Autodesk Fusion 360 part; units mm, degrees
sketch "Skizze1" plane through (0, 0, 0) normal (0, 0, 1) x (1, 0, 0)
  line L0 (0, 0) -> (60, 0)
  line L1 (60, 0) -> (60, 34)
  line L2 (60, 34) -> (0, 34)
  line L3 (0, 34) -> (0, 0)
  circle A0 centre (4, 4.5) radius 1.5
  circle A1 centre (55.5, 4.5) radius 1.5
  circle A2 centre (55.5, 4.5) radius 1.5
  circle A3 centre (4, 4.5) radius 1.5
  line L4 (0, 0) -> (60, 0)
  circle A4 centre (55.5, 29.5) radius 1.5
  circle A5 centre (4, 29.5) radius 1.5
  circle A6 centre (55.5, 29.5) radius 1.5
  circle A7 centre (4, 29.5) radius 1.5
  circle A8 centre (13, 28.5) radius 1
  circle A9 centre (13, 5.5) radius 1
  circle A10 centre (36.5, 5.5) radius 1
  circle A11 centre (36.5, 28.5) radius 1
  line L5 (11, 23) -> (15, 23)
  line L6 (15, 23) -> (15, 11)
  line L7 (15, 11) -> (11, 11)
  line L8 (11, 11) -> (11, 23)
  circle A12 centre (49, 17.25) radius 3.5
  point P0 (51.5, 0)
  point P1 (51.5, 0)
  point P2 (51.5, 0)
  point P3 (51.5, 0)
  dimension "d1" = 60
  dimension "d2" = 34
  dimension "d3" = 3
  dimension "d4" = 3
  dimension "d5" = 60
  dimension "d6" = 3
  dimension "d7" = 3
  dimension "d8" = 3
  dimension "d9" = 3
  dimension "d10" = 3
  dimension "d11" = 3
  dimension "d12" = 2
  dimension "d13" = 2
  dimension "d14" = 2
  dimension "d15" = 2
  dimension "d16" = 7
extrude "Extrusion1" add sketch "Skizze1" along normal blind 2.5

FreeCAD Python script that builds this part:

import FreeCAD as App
import Part
import Sketcher
from FreeCAD import Vector
Q = App.Units.Quantity


def add_polygon(sketch, points):
    """Adds a closed chain of lines whose ends are joined by coincident constraints."""
    first, n = sketch.GeometryCount, len(points)
    for a, b in zip(points, points[1:] + points[:1]):
        sketch.addGeometry(Part.LineSegment(App.Vector(*a, 0), App.Vector(*b, 0)), False)
    for i in range(n):
        sketch.addConstraint(Sketcher.Constraint("Coincident", first + i, 2, first + (i + 1) % n, 1))

doc = App.newDocument("Part")
body = doc.addObject("PartDesign::Body", "Body")

sketch1 = body.newObject("Sketcher::SketchObject", "Sketch")
sketch1.AttachmentSupport = (doc.getObject("XY_Plane"), [""])
sketch1.MapMode = "FlatFace"
add_polygon(sketch1, [(0, 34), (0, 0), (60, 0), (60, 34)])
sketch1.addGeometry(Part.Circle(Vector(4, 4.5, 0), Vector(0, 0, 1), 1.5), False)
sketch1.addGeometry(Part.Circle(Vector(13, 5.5, 0), Vector(0, 0, 1), 1), False)
sketch1.addGeometry(Part.Circle(Vector(36.5, 5.5, 0), Vector(0, 0, 1), 1), False)
sketch1.addGeometry(Part.Circle(Vector(55.5, 4.5, 0), Vector(0, 0, 1), 1.5), False)
add_polygon(sketch1, [(11, 11), (11, 23), (15, 23), (15, 11)])
sketch1.addGeometry(Part.Circle(Vector(4, 29.5, 0), Vector(0, 0, 1), 1.5), False)
sketch1.addGeometry(Part.Circle(Vector(13, 28.5, 0), Vector(0, 0, 1), 1), False)
sketch1.addGeometry(Part.Circle(Vector(49, 17.2, 0), Vector(0, 0, 1), 3.5), False)
sketch1.addGeometry(Part.Circle(Vector(36.5, 28.5, 0), Vector(0, 0, 1), 1), False)
sketch1.addGeometry(Part.Circle(Vector(55.5, 29.5, 0), Vector(0, 0, 1), 1.5), False)
sketch1.addConstraint([
    Sketcher.Constraint("Vertical", 0),
    Sketcher.Constraint("Horizontal", 1),
    Sketcher.Constraint("Vertical", 2),
    Sketcher.Constraint("Horizontal", 3),
    Sketcher.Constraint("Vertical", 8),
    Sketcher.Constraint("Horizontal", 9),
    Sketcher.Constraint("Vertical", 10),
    Sketcher.Constraint("Horizontal", 11),
    Sketcher.Constraint("Coincident", 0, 2, -1, 1),
    Sketcher.Constraint("Equal", 5, 6),
    Sketcher.Constraint("Equal", 4, 7),
    Sketcher.Constraint("Equal", 7, 12),
    Sketcher.Constraint("Equal", 6, 13),
    Sketcher.Constraint("Equal", 13, 15),
    Sketcher.Constraint("Equal", 12, 16),
    Sketcher.Constraint("Horizontal", 5, 3, 6, 3),
    Sketcher.Constraint("Horizontal", 4, 3, 7, 3),
    Sketcher.Constraint("Horizontal", 13, 3, 15, 3),
    Sketcher.Constraint("Horizontal", 12, 3, 16, 3),
    Sketcher.Constraint("Vertical", 4, 3, 12, 3),
    Sketcher.Constraint("Vertical", 5, 3, 13, 3),
    Sketcher.Constraint("Vertical", 6, 3, 15, 3),
    Sketcher.Constraint("Vertical", 7, 3, 16, 3),
    Sketcher.Constraint("Diameter", 4, Q("3 mm")),
    Sketcher.Constraint("Diameter", 5, Q("2 mm")),
    Sketcher.Constraint("Diameter", 14, Q("7 mm")),
    Sketcher.Constraint("DistanceX", 1, 1, 1, 2, Q("60 mm")),
    Sketcher.Constraint("DistanceY", 0, 2, 0, 1, Q("34 mm")),
    Sketcher.Constraint("DistanceX", 8, 2, 13, 3, Q("2 mm")),
    Sketcher.Constraint("DistanceX", 12, 3, 8, 2, Q("7 mm")),
    Sketcher.Constraint("DistanceX", 13, 3, 9, 2, Q("2 mm")),
    Sketcher.Constraint("DistanceY", 8, 1, 8, 2, Q("12 mm")),
    Sketcher.Constraint("DistanceX", -1, 1, 4, 3, Q("4 mm")),
    Sketcher.Constraint("DistanceX", -1, 1, 14, 3, Q("49 mm")),
    Sketcher.Constraint("DistanceY", -1, 1, 8, 2, Q("23 mm")),
    Sketcher.Constraint("DistanceY", 4, 3, 5, 3, Q("1 mm")),
    Sketcher.Constraint("DistanceX", 6, 3, 7, 3, Q("19 mm")),
    Sketcher.Constraint("DistanceY", 4, 3, 12, 3, Q("25 mm")),
    Sketcher.Constraint("DistanceY", 13, 3, 12, 3, Q("1 mm")),
    Sketcher.Constraint("DistanceY", -1, 1, 4, 3, Q("4.5 mm")),
    Sketcher.Constraint("DistanceX", -1, 1, 6, 3, Q("36.5 mm")),
    Sketcher.Constraint("DistanceY", -1, 1, 14, 3, Q("17.25 mm")),
])
pad1 = body.newObject("PartDesign::Pad", "Pad")
pad1.Profile = sketch1
pad1.Length = 2.5

doc.recompute()
